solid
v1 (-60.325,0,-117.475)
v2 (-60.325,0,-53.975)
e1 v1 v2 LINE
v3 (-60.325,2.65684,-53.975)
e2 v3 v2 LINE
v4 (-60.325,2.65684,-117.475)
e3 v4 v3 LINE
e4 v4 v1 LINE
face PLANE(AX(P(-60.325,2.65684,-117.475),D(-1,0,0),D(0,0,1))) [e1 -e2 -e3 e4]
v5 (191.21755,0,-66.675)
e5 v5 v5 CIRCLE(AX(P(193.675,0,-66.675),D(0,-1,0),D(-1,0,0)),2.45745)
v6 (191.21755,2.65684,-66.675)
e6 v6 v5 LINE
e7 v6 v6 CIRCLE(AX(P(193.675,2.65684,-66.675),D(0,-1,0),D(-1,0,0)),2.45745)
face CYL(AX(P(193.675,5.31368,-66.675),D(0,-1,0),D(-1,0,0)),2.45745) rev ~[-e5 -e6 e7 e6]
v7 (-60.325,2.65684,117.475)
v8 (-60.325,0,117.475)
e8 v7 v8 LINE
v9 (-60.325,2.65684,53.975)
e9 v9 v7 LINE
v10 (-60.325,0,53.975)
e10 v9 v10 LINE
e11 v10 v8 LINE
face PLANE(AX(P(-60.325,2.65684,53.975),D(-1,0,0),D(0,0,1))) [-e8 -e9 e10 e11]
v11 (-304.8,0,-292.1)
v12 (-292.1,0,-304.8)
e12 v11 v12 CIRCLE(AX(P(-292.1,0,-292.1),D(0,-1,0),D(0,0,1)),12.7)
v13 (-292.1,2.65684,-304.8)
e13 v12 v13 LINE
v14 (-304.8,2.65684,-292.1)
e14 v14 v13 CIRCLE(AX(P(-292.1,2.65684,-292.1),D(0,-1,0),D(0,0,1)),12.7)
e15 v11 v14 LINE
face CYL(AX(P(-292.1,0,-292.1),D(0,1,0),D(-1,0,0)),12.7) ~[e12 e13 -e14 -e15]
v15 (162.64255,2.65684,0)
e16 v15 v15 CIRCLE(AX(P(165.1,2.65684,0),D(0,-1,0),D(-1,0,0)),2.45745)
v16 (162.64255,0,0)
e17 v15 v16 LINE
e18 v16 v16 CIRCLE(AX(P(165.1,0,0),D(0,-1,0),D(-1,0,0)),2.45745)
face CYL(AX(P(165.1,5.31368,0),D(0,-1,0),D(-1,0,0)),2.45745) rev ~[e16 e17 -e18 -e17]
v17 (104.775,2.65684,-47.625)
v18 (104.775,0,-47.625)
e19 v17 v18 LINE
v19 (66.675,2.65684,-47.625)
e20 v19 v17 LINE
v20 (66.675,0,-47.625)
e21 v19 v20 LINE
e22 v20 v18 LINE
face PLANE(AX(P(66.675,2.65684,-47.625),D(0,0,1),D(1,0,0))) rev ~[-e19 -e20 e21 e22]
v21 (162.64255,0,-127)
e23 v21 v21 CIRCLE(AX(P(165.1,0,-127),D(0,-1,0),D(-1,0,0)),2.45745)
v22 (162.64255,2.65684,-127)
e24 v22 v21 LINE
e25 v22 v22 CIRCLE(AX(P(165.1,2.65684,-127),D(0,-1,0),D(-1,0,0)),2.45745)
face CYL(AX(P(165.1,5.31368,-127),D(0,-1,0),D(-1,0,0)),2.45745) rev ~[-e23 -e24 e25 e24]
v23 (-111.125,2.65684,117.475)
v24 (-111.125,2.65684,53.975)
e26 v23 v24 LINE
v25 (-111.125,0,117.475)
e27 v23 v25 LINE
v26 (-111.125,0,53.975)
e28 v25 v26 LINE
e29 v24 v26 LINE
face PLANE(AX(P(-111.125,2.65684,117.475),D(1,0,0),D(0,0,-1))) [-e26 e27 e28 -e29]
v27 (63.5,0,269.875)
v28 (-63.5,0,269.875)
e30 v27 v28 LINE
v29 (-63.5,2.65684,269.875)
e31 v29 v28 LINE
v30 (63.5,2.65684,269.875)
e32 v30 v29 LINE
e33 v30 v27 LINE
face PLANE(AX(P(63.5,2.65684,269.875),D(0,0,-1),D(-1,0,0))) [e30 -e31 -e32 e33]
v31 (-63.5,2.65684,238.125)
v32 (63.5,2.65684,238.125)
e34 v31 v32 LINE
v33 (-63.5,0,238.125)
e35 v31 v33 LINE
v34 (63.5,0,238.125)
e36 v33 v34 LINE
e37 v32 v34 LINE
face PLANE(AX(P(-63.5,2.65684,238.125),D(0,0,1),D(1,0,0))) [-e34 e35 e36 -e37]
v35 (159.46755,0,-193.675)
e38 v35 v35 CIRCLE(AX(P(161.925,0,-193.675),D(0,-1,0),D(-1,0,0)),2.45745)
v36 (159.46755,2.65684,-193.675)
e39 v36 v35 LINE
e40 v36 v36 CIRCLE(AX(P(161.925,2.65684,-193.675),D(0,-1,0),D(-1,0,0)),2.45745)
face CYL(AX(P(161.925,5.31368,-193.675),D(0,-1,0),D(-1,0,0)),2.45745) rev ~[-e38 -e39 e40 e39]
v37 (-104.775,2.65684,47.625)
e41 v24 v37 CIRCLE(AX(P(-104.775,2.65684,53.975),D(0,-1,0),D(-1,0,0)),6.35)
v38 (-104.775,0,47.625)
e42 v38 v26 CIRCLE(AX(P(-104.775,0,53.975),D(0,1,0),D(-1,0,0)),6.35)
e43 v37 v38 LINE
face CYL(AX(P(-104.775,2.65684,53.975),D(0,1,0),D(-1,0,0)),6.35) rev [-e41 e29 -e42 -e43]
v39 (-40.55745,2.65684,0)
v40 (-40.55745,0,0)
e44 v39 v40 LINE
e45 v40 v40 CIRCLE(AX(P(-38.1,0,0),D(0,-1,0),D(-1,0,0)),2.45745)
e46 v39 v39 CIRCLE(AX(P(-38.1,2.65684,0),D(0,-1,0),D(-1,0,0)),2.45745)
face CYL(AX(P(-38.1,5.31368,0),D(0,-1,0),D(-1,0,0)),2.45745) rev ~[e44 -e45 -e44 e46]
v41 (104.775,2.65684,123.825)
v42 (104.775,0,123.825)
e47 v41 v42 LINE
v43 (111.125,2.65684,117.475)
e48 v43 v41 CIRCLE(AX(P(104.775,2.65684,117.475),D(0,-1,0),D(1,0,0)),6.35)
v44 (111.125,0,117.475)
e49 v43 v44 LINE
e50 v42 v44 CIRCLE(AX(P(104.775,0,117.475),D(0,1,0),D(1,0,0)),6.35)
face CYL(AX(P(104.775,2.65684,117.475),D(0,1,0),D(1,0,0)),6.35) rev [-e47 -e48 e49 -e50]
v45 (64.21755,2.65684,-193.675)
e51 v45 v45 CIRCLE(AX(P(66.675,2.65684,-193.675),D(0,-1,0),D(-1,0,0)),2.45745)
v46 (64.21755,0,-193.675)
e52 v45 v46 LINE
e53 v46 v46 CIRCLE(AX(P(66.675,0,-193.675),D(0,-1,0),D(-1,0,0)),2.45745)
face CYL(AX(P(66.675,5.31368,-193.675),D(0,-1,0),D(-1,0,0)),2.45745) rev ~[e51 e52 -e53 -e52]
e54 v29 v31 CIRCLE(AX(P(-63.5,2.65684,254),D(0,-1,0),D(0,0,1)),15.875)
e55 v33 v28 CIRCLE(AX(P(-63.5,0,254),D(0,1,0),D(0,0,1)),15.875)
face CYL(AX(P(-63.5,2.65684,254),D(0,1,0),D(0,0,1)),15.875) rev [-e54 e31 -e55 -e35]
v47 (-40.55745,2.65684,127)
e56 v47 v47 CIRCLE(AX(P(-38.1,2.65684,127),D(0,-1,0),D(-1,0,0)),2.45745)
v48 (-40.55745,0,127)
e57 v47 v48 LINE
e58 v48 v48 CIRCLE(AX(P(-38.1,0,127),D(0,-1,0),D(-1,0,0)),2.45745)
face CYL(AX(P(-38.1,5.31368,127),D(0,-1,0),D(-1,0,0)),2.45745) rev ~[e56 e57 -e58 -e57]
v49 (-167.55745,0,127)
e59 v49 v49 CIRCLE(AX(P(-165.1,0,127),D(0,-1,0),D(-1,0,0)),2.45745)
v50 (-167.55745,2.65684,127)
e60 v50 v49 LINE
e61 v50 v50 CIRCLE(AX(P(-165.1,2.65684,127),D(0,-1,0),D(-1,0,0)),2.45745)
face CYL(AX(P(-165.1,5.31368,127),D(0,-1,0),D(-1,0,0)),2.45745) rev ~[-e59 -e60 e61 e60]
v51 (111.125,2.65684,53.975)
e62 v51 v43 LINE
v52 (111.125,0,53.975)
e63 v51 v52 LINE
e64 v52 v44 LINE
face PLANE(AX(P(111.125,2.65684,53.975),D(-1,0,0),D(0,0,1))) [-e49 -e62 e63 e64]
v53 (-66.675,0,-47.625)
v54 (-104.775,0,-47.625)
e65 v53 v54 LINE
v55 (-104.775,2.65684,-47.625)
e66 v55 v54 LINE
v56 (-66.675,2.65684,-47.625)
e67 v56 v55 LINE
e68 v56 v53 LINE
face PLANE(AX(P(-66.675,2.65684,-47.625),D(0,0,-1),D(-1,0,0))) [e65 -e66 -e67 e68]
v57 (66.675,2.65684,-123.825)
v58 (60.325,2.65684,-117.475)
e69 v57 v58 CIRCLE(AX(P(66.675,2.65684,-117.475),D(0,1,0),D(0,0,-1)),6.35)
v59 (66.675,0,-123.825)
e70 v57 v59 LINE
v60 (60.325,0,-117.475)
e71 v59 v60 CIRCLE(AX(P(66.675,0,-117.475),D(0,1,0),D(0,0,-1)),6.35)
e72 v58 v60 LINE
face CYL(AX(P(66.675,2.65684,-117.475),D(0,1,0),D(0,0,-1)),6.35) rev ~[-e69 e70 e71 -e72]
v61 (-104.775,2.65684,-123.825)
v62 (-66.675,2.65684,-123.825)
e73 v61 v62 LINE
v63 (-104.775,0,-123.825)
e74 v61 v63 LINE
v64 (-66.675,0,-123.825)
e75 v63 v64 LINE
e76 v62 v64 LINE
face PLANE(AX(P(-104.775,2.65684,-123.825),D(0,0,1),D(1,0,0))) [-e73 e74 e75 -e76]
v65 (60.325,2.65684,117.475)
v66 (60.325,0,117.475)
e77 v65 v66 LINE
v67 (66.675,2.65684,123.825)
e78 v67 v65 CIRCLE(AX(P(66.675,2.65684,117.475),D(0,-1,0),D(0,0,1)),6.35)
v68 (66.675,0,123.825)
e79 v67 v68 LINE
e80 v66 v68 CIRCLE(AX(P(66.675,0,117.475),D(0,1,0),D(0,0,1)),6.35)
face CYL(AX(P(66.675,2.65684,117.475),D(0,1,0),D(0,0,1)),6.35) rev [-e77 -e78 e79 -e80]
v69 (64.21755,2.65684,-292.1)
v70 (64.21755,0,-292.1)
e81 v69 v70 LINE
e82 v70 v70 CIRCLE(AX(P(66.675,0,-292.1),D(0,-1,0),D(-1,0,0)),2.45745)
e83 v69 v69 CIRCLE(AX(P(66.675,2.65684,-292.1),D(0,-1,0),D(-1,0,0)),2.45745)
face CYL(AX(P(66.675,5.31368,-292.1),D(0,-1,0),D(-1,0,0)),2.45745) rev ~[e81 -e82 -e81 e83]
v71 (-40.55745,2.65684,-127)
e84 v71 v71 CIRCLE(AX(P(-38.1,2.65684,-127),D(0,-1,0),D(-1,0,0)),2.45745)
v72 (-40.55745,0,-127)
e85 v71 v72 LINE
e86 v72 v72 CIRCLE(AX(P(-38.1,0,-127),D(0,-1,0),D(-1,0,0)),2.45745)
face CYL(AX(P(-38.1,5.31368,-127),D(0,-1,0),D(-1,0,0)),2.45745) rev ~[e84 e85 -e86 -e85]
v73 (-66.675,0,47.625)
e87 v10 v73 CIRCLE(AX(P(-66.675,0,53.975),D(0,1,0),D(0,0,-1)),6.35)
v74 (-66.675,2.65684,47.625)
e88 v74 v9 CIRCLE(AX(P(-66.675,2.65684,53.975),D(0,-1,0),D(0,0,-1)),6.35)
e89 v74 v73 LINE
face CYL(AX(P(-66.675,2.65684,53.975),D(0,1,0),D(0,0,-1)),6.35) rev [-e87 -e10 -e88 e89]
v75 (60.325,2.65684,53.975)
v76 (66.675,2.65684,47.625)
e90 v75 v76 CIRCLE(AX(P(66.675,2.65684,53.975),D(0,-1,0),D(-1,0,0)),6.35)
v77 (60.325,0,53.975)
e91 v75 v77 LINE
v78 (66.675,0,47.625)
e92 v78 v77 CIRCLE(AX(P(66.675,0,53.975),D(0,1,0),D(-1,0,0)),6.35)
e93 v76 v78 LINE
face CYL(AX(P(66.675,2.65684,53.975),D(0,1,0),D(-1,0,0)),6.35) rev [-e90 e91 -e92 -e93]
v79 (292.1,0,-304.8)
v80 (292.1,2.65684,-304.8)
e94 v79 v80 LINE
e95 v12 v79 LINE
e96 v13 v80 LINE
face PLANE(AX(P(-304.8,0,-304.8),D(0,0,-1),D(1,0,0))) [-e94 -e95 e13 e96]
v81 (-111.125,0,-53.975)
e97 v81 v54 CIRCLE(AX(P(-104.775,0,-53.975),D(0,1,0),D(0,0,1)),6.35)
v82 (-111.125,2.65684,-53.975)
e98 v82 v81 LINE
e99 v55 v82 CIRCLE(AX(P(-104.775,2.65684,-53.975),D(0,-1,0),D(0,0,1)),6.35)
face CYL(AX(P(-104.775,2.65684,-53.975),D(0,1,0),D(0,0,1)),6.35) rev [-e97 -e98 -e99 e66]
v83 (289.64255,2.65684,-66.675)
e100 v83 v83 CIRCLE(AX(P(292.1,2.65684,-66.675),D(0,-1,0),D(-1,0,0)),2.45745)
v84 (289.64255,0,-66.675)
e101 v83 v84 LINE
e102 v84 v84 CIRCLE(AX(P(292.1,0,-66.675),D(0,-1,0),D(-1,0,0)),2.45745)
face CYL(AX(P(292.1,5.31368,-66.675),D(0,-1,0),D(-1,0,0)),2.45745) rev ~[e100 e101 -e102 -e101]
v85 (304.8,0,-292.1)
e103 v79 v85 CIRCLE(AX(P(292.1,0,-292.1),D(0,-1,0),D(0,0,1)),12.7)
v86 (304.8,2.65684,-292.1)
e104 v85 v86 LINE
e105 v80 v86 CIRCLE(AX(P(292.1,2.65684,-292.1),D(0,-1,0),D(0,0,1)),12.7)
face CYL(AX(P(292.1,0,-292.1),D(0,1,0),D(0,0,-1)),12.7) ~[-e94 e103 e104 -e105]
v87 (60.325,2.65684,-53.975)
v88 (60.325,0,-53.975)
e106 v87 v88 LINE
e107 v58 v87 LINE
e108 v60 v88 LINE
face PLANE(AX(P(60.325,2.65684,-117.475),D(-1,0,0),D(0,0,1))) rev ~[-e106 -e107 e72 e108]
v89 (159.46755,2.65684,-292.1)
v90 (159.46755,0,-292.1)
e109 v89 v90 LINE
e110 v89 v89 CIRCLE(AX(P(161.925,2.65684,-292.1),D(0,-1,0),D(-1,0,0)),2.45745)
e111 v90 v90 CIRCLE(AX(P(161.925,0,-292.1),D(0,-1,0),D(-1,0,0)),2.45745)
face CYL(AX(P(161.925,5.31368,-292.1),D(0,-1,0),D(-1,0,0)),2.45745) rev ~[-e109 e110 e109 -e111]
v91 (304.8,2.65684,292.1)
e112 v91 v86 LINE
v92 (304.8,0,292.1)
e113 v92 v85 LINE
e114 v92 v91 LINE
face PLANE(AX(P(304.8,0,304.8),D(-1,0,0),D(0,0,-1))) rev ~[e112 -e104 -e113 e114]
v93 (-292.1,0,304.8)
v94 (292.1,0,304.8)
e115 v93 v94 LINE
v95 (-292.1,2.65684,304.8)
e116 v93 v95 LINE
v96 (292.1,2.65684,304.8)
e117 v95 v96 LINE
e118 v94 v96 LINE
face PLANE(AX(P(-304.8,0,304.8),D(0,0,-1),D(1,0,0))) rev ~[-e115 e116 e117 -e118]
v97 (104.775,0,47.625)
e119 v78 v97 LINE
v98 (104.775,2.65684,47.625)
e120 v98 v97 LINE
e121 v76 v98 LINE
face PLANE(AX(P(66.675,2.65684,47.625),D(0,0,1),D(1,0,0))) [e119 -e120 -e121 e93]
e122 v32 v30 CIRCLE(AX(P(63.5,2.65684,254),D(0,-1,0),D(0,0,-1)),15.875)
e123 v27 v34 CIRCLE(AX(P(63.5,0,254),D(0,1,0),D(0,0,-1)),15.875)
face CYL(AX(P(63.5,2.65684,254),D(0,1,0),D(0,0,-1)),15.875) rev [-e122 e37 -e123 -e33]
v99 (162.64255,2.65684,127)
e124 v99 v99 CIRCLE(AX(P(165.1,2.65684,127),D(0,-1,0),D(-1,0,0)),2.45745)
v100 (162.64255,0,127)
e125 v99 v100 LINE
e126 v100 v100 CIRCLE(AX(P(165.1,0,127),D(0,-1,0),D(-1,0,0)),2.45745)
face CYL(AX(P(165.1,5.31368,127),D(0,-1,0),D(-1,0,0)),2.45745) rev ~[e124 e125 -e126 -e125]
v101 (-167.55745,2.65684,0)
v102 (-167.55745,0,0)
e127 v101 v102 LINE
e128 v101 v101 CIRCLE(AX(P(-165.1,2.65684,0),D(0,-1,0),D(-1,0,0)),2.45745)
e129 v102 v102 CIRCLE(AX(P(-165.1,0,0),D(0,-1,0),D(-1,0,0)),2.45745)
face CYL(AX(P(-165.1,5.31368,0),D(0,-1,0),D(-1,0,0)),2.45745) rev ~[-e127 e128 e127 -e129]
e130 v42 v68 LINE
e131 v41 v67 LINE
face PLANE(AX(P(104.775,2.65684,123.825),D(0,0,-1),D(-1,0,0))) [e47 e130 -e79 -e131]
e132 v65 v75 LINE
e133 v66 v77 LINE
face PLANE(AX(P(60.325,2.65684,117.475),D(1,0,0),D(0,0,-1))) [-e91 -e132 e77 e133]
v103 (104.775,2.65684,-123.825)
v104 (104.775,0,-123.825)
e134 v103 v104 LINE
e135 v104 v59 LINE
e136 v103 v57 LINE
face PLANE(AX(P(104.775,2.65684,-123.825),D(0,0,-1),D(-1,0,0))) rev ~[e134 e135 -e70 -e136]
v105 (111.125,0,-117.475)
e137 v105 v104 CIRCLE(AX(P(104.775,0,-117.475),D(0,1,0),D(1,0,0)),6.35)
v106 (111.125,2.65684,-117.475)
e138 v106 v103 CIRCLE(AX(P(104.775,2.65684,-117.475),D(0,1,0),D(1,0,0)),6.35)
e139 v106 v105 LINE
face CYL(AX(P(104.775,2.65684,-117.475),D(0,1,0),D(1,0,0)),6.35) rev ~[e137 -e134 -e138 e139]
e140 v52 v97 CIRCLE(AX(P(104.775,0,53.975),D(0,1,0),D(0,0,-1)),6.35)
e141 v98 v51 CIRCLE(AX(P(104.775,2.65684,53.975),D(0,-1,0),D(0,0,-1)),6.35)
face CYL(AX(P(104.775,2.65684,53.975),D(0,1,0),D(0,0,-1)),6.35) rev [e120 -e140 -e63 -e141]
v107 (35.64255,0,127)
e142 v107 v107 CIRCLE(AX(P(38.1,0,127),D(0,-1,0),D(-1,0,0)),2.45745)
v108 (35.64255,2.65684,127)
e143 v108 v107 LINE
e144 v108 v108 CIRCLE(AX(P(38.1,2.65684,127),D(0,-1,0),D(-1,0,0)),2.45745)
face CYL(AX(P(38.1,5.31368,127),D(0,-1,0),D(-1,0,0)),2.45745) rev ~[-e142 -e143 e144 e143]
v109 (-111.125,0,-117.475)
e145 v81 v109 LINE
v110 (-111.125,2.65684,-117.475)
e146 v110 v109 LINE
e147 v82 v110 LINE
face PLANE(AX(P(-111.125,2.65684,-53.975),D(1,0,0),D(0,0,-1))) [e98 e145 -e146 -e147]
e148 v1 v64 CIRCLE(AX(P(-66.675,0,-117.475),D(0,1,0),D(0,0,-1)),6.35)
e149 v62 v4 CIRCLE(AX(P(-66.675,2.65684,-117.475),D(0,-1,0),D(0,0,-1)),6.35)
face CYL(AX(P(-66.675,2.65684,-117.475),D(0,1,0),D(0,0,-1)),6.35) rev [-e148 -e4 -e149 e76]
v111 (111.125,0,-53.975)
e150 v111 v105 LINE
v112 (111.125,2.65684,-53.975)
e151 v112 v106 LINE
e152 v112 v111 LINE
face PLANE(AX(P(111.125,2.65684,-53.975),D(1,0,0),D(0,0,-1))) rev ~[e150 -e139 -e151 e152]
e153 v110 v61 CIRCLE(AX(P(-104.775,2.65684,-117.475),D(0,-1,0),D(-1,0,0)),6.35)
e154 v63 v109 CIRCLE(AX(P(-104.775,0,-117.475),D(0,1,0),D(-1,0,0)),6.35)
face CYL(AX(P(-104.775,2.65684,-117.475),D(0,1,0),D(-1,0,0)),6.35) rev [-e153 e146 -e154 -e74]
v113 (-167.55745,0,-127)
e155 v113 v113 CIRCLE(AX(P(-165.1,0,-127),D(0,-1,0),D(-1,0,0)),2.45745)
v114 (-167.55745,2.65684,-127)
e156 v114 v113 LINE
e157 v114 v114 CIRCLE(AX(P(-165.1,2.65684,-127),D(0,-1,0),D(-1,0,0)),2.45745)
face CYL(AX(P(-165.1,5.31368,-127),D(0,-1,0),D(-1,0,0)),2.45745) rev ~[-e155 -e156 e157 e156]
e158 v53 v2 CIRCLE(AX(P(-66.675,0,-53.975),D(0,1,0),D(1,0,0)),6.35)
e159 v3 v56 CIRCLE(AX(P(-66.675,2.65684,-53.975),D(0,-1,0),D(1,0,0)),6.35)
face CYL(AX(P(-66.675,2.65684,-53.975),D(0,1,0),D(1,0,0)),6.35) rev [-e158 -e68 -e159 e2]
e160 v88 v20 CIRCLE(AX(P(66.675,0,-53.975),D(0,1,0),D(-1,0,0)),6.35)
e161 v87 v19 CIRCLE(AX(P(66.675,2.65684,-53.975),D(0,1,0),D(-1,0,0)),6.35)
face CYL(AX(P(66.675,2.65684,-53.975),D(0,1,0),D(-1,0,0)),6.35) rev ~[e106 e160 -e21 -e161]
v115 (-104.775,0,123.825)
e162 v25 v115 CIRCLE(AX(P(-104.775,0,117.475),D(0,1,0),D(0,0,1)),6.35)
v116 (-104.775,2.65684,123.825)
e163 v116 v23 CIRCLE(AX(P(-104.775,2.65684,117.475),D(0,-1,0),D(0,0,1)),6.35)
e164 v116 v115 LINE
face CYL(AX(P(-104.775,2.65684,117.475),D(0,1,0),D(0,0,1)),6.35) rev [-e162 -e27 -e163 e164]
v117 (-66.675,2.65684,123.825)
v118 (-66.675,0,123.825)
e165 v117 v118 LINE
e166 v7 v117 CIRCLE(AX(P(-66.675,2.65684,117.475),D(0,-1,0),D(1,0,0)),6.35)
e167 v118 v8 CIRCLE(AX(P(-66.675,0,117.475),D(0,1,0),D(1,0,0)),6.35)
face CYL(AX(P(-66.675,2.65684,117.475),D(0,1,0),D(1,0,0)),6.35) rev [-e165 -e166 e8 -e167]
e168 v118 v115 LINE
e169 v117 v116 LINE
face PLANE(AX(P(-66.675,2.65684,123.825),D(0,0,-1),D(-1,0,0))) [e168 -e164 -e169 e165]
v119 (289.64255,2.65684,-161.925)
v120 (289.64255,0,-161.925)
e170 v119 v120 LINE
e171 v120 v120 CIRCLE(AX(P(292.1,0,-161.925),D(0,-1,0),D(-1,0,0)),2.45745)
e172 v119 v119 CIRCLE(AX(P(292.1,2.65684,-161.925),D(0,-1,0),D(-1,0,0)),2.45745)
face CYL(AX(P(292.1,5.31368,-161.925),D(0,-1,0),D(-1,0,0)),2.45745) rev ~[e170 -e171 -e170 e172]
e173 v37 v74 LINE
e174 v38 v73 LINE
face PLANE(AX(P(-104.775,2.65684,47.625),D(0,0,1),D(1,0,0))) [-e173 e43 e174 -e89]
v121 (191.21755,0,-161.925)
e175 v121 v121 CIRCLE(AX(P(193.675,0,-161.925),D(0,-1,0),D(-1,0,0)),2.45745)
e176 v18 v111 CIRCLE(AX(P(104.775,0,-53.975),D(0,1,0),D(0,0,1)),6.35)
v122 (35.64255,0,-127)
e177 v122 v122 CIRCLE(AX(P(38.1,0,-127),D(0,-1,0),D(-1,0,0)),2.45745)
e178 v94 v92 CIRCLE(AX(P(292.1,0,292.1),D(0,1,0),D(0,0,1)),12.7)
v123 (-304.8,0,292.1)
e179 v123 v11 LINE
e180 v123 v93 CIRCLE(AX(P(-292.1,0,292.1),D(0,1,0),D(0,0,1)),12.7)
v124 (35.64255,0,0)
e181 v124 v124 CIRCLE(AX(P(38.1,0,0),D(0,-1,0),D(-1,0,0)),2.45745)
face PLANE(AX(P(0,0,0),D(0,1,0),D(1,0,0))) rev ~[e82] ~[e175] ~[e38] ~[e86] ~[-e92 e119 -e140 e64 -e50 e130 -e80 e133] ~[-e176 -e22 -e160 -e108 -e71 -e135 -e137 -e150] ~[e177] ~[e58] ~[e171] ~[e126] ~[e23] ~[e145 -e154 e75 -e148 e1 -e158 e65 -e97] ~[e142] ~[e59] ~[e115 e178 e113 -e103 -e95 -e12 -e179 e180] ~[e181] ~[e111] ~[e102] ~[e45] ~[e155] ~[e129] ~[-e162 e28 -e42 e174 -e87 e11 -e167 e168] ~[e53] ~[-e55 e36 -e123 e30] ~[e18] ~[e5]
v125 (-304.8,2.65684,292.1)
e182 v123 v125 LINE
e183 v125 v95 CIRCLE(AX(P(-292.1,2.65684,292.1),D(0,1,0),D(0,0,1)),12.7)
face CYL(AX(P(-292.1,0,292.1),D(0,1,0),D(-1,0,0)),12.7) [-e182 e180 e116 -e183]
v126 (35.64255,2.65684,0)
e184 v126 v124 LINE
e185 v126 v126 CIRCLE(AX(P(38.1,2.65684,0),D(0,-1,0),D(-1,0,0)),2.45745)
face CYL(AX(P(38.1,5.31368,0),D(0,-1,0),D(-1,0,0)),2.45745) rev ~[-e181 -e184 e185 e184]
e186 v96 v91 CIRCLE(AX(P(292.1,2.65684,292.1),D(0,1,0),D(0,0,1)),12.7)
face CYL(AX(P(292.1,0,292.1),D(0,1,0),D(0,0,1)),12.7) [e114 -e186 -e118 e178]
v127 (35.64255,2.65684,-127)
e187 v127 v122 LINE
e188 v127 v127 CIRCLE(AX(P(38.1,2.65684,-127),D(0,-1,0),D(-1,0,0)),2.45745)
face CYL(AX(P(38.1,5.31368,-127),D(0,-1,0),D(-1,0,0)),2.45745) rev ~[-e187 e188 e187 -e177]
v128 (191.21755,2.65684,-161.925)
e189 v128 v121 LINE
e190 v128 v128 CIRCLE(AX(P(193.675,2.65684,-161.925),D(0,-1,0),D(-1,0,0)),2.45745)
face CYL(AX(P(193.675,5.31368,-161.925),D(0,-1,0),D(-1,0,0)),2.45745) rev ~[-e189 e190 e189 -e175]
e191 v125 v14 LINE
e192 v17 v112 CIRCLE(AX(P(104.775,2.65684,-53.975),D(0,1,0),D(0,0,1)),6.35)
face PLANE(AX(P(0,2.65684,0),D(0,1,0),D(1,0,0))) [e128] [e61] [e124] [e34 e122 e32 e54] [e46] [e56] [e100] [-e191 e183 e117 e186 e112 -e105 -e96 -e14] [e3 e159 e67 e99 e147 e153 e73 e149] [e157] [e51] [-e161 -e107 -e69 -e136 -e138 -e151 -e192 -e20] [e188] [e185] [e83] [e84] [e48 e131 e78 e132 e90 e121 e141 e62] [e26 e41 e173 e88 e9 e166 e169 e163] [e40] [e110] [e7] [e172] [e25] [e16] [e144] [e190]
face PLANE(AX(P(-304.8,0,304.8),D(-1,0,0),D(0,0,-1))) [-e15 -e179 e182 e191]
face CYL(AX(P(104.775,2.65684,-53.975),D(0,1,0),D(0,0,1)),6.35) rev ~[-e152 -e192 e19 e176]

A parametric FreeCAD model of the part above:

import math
import FreeCAD as App
import Part
import Sketcher
Q = App.Units.Quantity


def edges_at(feature, points):
    """Names of the edges that pass closest to the given points."""
    edges = feature.Shape.Edges
    near = lambda p: min(range(len(edges)), key=lambda i: edges[i].distToShape(Part.Vertex(*p))[0])
    return sorted({f"Edge{near(p) + 1}" for p in points})

doc = App.newDocument("Part")
params = doc.addObject("Spreadsheet::Sheet", "Params")
for row, (alias, value) in enumerate([
    ("sketch1_width", "24 in"),
    ("pad1_length", "0.1046 in"),
    ("sketch2_radius", "0.25 in"),
    ("sketch2_width", "1.5 in"),
    ("sketch2_height", "2.5 in"),
    ("sketch3_diameter", "0.188 in"),
    ("linearpattern_pitch", "8 in"),
    ("sketch4_width", "5 in"),
    ("sketch4_radius", "0.625 in"),
    ("fillet_radius", "0.5 in"),
    ("sketch5_diameter", "0.188 in"),
    ("hole_diameter", "0.1935 in"),
    ("hole_depth", "0.1046 in"),
], start=1):
    params.set(f"A{row}", alias)
    params.set(f"B{row}", "=" + value)
    params.setAlias(f"B{row}", alias)

body = doc.addObject("PartDesign::Body", "Body")

# Sketch on XZ plane
sketch1 = body.newObject("Sketcher::SketchObject", "Sketch")
sketch1.AttachmentSupport = (doc.getObject("XZ_Plane"), [""])
sketch1.MapMode = "FlatFace"
sketch1.addGeometry([
    Part.LineSegment(App.Vector(-305, -305, 0), App.Vector(-305, 305, 0)),
    Part.LineSegment(App.Vector(-305, 305, 0), App.Vector(305, 305, 0)),
    Part.LineSegment(App.Vector(305, 305, 0), App.Vector(305, -305, 0)),
    Part.LineSegment(App.Vector(305, -305, 0), App.Vector(-305, -305, 0)),
], False)
sketch1.addConstraint([
    Sketcher.Constraint("Coincident", 0, 2, 1, 1),
    Sketcher.Constraint("Coincident", 1, 2, 2, 1),
    Sketcher.Constraint("Coincident", 2, 2, 3, 1),
    Sketcher.Constraint("Coincident", 3, 2, 0, 1),
    Sketcher.Constraint("Vertical", 0),
    Sketcher.Constraint("Horizontal", 1),
    Sketcher.Constraint("Vertical", 2),
    Sketcher.Constraint("Horizontal", 3),
    Sketcher.Constraint("Symmetric", 0, 2, 2, 2, -1, 1),
    Sketcher.Constraint("Equal", 3, 0),
    Sketcher.Constraint("DistanceX", 1, 1, 1, 2, Q("24 in")),
])
sketch1.setExpression("Constraints[10]", "Params.sketch1_width")
pad1 = body.newObject("PartDesign::Pad", "Pad")
pad1.Profile = sketch1
pad1.setExpression("Length", "Params.pad1_length")
pad1.Reversed = True

# Sketch on XZ plane
sketch2 = body.newObject("Sketcher::SketchObject", "Sketch001")
sketch2.AttachmentSupport = (doc.getObject("XZ_Plane"), [""])
sketch2.MapMode = "FlatFace"
sketch2.AttachmentOffset = App.Placement(App.Vector(0, 0, -0.1046 * 25.4), App.Rotation())
sketch2.addGeometry([
    Part.LineSegment(App.Vector(-67, -124, 0), App.Vector(-105, -124, 0)),  # 0
    Part.ArcOfCircle(Part.Circle(App.Vector(-105, -117, 0), App.Vector(0, 0, 1), 6), math.radians(180), math.radians(270)),  # 1
    Part.LineSegment(App.Vector(-111, -117, 0), App.Vector(-111, -54, 0)),  # 2
    Part.ArcOfCircle(Part.Circle(App.Vector(-105, -54, 0), App.Vector(0, 0, 1), 6), math.radians(90), math.radians(180)),  # 3
    Part.LineSegment(App.Vector(-105, -48, 0), App.Vector(-67, -48, 0)),  # 4
    Part.ArcOfCircle(Part.Circle(App.Vector(-67, -54, 0), App.Vector(0, 0, 1), 6), math.radians(0), math.radians(90)),  # 5
    Part.LineSegment(App.Vector(-60, -54, 0), App.Vector(-60, -117, 0)),  # 6
    Part.ArcOfCircle(Part.Circle(App.Vector(-67, -117, 0), App.Vector(0, 0, 1), 6), math.radians(-90), math.radians(0)),  # 7
    Part.LineSegment(App.Vector(-67, 48, 0), App.Vector(-105, 48, 0)),  # 8
    Part.ArcOfCircle(Part.Circle(App.Vector(-105, 54, 0), App.Vector(0, 0, 1), 6), math.radians(180), math.radians(270)),  # 9
    Part.LineSegment(App.Vector(-111, 54, 0), App.Vector(-111, 117, 0)),  # 10
    Part.ArcOfCircle(Part.Circle(App.Vector(-105, 117, 0), App.Vector(0, 0, 1), 6), math.radians(90), math.radians(180)),  # 11
    Part.LineSegment(App.Vector(-105, 124, 0), App.Vector(-67, 124, 0)),  # 12
    Part.ArcOfCircle(Part.Circle(App.Vector(-67, 117, 0), App.Vector(0, 0, 1), 6), math.radians(0), math.radians(90)),  # 13
    Part.LineSegment(App.Vector(-60, 117, 0), App.Vector(-60, 54, 0)),  # 14
    Part.ArcOfCircle(Part.Circle(App.Vector(-67, 54, 0), App.Vector(0, 0, 1), 6), math.radians(-90), math.radians(0)),  # 15
    Part.LineSegment(App.Vector(105, 48, 0), App.Vector(67, 48, 0)),  # 16
    Part.ArcOfCircle(Part.Circle(App.Vector(67, 54, 0), App.Vector(0, 0, 1), 6), math.radians(180), math.radians(270)),  # 17
    Part.LineSegment(App.Vector(60, 54, 0), App.Vector(60, 117, 0)),  # 18
    Part.ArcOfCircle(Part.Circle(App.Vector(67, 117, 0), App.Vector(0, 0, 1), 6), math.radians(90), math.radians(180)),  # 19
    Part.LineSegment(App.Vector(67, 124, 0), App.Vector(105, 124, 0)),  # 20
    Part.ArcOfCircle(Part.Circle(App.Vector(105, 117, 0), App.Vector(0, 0, 1), 6), math.radians(0), math.radians(90)),  # 21
    Part.LineSegment(App.Vector(111, 117, 0), App.Vector(111, 54, 0)),  # 22
    Part.ArcOfCircle(Part.Circle(App.Vector(105, 54, 0), App.Vector(0, 0, 1), 6), math.radians(-90), math.radians(0)),  # 23
    Part.LineSegment(App.Vector(105, -124, 0), App.Vector(67, -124, 0)),  # 24
    Part.ArcOfCircle(Part.Circle(App.Vector(67, -117, 0), App.Vector(0, 0, 1), 6), math.radians(180), math.radians(270)),  # 25
    Part.LineSegment(App.Vector(60, -117, 0), App.Vector(60, -54, 0)),  # 26
    Part.ArcOfCircle(Part.Circle(App.Vector(67, -54, 0), App.Vector(0, 0, 1), 6), math.radians(90), math.radians(180)),  # 27
    Part.LineSegment(App.Vector(67, -48, 0), App.Vector(105, -48, 0)),  # 28
    Part.ArcOfCircle(Part.Circle(App.Vector(105, -54, 0), App.Vector(0, 0, 1), 6), math.radians(0), math.radians(90)),  # 29
    Part.LineSegment(App.Vector(111, -54, 0), App.Vector(111, -117, 0)),  # 30
    Part.ArcOfCircle(Part.Circle(App.Vector(105, -117, 0), App.Vector(0, 0, 1), 6), math.radians(-90), math.radians(0)),  # 31
], False)
sketch2.addConstraint([
    Sketcher.Constraint("Tangent", 0, 2, 1, 2),
    Sketcher.Constraint("Tangent", 1, 1, 2, 1),
    Sketcher.Constraint("Tangent", 2, 2, 3, 2),
    Sketcher.Constraint("Tangent", 3, 1, 4, 1),
    Sketcher.Constraint("Tangent", 4, 2, 5, 2),
    Sketcher.Constraint("Tangent", 5, 1, 6, 1),
    Sketcher.Constraint("Tangent", 6, 2, 7, 2),
    Sketcher.Constraint("Tangent", 7, 1, 0, 1),
    Sketcher.Constraint("Tangent", 8, 2, 9, 2),
    Sketcher.Constraint("Tangent", 9, 1, 10, 1),
    Sketcher.Constraint("Tangent", 10, 2, 11, 2),
    Sketcher.Constraint("Tangent", 11, 1, 12, 1),
    Sketcher.Constraint("Tangent", 12, 2, 13, 2),
    Sketcher.Constraint("Tangent", 13, 1, 14, 1),
    Sketcher.Constraint("Tangent", 14, 2, 15, 2),
    Sketcher.Constraint("Tangent", 15, 1, 8, 1),
    Sketcher.Constraint("Tangent", 16, 2, 17, 2),
    Sketcher.Constraint("Tangent", 17, 1, 18, 1),
    Sketcher.Constraint("Tangent", 18, 2, 19, 2),
    Sketcher.Constraint("Tangent", 19, 1, 20, 1),
    Sketcher.Constraint("Tangent", 20, 2, 21, 2),
    Sketcher.Constraint("Tangent", 21, 1, 22, 1),
    Sketcher.Constraint("Tangent", 22, 2, 23, 2),
    Sketcher.Constraint("Tangent", 23, 1, 16, 1),
    Sketcher.Constraint("Tangent", 24, 2, 25, 2),
    Sketcher.Constraint("Tangent", 25, 1, 26, 1),
    Sketcher.Constraint("Tangent", 26, 2, 27, 2),
    Sketcher.Constraint("Tangent", 27, 1, 28, 1),
    Sketcher.Constraint("Tangent", 28, 2, 29, 2),
    Sketcher.Constraint("Tangent", 29, 1, 30, 1),
    Sketcher.Constraint("Tangent", 30, 2, 31, 2),
    Sketcher.Constraint("Tangent", 31, 1, 24, 1),
    Sketcher.Constraint("Horizontal", 0),
    Sketcher.Constraint("Vertical", 2),
    Sketcher.Constraint("Horizontal", 4),
    Sketcher.Constraint("Vertical", 6),
    Sketcher.Constraint("Horizontal", 8),
    Sketcher.Constraint("Vertical", 10),
    Sketcher.Constraint("Horizontal", 12),
    Sketcher.Constraint("Vertical", 14),
    Sketcher.Constraint("Horizontal", 16),
    Sketcher.Constraint("Vertical", 18),
    Sketcher.Constraint("Horizontal", 20),
    Sketcher.Constraint("Vertical", 22),
    Sketcher.Constraint("Horizontal", 24),
    Sketcher.Constraint("Vertical", 26),
    Sketcher.Constraint("Horizontal", 28),
    Sketcher.Constraint("Vertical", 30),
    Sketcher.Constraint("Equal", 1, 3),
    Sketcher.Constraint("Equal", 3, 5),
    Sketcher.Constraint("Equal", 5, 7),
    Sketcher.Constraint("Equal", 7, 9),
    Sketcher.Constraint("Equal", 9, 11),
    Sketcher.Constraint("Equal", 11, 13),
    Sketcher.Constraint("Equal", 13, 15),
    Sketcher.Constraint("Equal", 15, 17),
    Sketcher.Constraint("Equal", 17, 19),
    Sketcher.Constraint("Equal", 19, 21),
    Sketcher.Constraint("Equal", 21, 23),
    Sketcher.Constraint("Equal", 23, 25),
    Sketcher.Constraint("Equal", 25, 27),
    Sketcher.Constraint("Equal", 27, 29),
    Sketcher.Constraint("Equal", 29, 31),
    Sketcher.Constraint("Symmetric", 5, 3, 17, 3, -1, 1),
    Sketcher.Constraint("Symmetric", 1, 3, 21, 3, -1, 1),
    Sketcher.Constraint("Symmetric", 13, 3, 25, 3, -1, 1),
    Sketcher.Constraint("Symmetric", 9, 3, 29, 3, -1, 1),
    Sketcher.Constraint("Symmetric", 15, 3, 17, 3, -2),
    Sketcher.Constraint("Symmetric", 11, 3, 21, 3, -2),
    Sketcher.Constraint("Radius", 1, Q("0.25 in")),
    Sketcher.Constraint("DistanceX", 0, 2, 0, 1, Q("1.5 in")),
    Sketcher.Constraint("DistanceY", 2, 1, 2, 2, Q("2.5 in")),
    Sketcher.Constraint("DistanceY", 27, 3, 16, 2, Q("4 in")),
    Sketcher.Constraint("DistanceX", 6, 2, 24, 2, Q("5 in")),
])
sketch2.setExpression("Constraints[69]", "Params.sketch2_radius")
sketch2.setExpression("Constraints[70]", "Params.sketch2_width")
sketch2.setExpression("Constraints[71]", "Params.sketch2_height")
pocket1 = body.newObject("PartDesign::Pocket", "Pocket")
pocket1.Profile = sketch2
pocket1.Type = "ThroughAll"
pocket1.Reversed = True

# Sketch on XZ plane
sketch3 = body.newObject("Sketcher::SketchObject", "Sketch002")
sketch3.AttachmentSupport = (doc.getObject("XZ_Plane"), [""])
sketch3.MapMode = "FlatFace"
sketch3.AttachmentOffset = App.Placement(App.Vector(0, 0, -0.1046 * 25.4), App.Rotation())
sketch3.addGeometry([
    Part.Circle(App.Vector(-165.1, -127, 0), App.Vector(0, 0, 1), 2.4),  # 0
    Part.Circle(App.Vector(-165.1, 0, 0), App.Vector(0, 0, 1), 2.4),  # 1
    Part.Circle(App.Vector(-165.1, 127, 0), App.Vector(0, 0, 1), 2.4),  # 2
    Part.Circle(App.Vector(-38.1, -127, 0), App.Vector(0, 0, 1), 2.4),  # 3
    Part.Circle(App.Vector(-38.1, 0, 0), App.Vector(0, 0, 1), 2.4),  # 4
    Part.Circle(App.Vector(-38.1, 127, 0), App.Vector(0, 0, 1), 2.4),  # 5
], False)
sketch3.addConstraint([
    Sketcher.Constraint("Equal", 0, 1),
    Sketcher.Constraint("Equal", 1, 2),
    Sketcher.Constraint("Equal", 2, 3),
    Sketcher.Constraint("Equal", 3, 4),
    Sketcher.Constraint("Equal", 4, 5),
    Sketcher.Constraint("Symmetric", 0, 3, 2, 3, -1),
    Sketcher.Constraint("Symmetric", 3, 3, 5, 3, -1),
    Sketcher.Constraint("PointOnObject", 1, 3, -1),
    Sketcher.Constraint("PointOnObject", 4, 3, -1),
    Sketcher.Constraint("Horizontal", 0, 3, 3, 3),
    Sketcher.Constraint("Vertical", 0, 3, 1, 3),
    Sketcher.Constraint("Vertical", 3, 3, 4, 3),
    Sketcher.Constraint("Diameter", 0, Q("0.188 in")),
    Sketcher.Constraint("DistanceY", 0, 3, -1, 1, Q("5 in")),
    Sketcher.Constraint("DistanceX", 0, 3, 3, 3, Q("5 in")),
    Sketcher.Constraint("DistanceX", 0, 3, -1, 1, Q("6.5 in")),
])
sketch3.setExpression("Constraints[12]", "Params.sketch3_diameter")
pocket2 = body.newObject("PartDesign::Pocket", "Pocket001")
pocket2.Profile = sketch3
pocket2.Type = "ThroughAll"
pocket2.Reversed = True
doc.recompute()

linearpattern = body.newObject("PartDesign::LinearPattern", "LinearPattern")
linearpattern.Originals = [pocket2]
linearpattern.Direction = (doc.getObject("X_Axis"), [""])
linearpattern.Mode = "offset"
linearpattern.setExpression("Offset", "Params.linearpattern_pitch")
linearpattern.Occurrences = 2
body.Tip = linearpattern

# Sketch on XZ plane
sketch4 = body.newObject("Sketcher::SketchObject", "Sketch003")
sketch4.AttachmentSupport = (doc.getObject("XZ_Plane"), [""])
sketch4.MapMode = "FlatFace"
sketch4.AttachmentOffset = App.Placement(App.Vector(0, 0, -0.1046 * 25.4), App.Rotation())
sketch4.addGeometry([
    Part.LineSegment(App.Vector(64, 238, 0), App.Vector(-64, 238, 0)),
    Part.ArcOfCircle(Part.Circle(App.Vector(-64, 254, 0), App.Vector(0, 0, 1), 16), math.radians(90), math.radians(270)),
    Part.LineSegment(App.Vector(-64, 270, 0), App.Vector(64, 270, 0)),
    Part.ArcOfCircle(Part.Circle(App.Vector(64, 254, 0), App.Vector(0, 0, 1), 16), math.radians(-90), math.radians(90)),
], False)
sketch4.addConstraint([
    Sketcher.Constraint("Tangent", 0, 2, 1, 2),
    Sketcher.Constraint("Tangent", 1, 1, 2, 1),
    Sketcher.Constraint("Tangent", 2, 2, 3, 2),
    Sketcher.Constraint("Tangent", 3, 1, 0, 1),
    Sketcher.Constraint("Horizontal", 0),
    Sketcher.Constraint("Horizontal", 2),
    Sketcher.Constraint("DistanceX", 0, 2, 0, 1, Q("5 in")),
    Sketcher.Constraint("DistanceY", -1, 1, 1, 3, Q("10 in")),
    Sketcher.Constraint("Radius", 1, Q("0.625 in")),
    Sketcher.Constraint("DistanceX", 1, 3, -1, 1, Q("2.5 in")),
])
sketch4.setExpression("Constraints[6]", "Params.sketch4_width")
sketch4.setExpression("Constraints[8]", "Params.sketch4_radius")
pocket3 = body.newObject("PartDesign::Pocket", "Pocket002")
pocket3.Profile = sketch4
pocket3.Type = "ThroughAll"
pocket3.Reversed = True
doc.recompute()

fillet = body.newObject("PartDesign::Fillet", "Fillet")
fillet.Base = (pocket3, edges_at(pocket3, [
    (-304.8, 1.328, 304.8),
    (304.8, 1.328, 304.8),
    (-304.8, 1.328, -304.8),
    (304.8, 1.328, -304.8),
]))
fillet.setExpression("Radius", "Params.fillet_radius")

# Sketch on XZ plane
sketch5 = body.newObject("Sketcher::SketchObject", "Sketch004")
sketch5.AttachmentSupport = (doc.getObject("XZ_Plane"), [""])
sketch5.MapMode = "FlatFace"
sketch5.AttachmentOffset = App.Placement(App.Vector(0, 0, -0.1046 * 25.4), App.Rotation())
sketch5.addGeometry([
    Part.Circle(App.Vector(161.9, -292.1, 0), App.Vector(0, 0, 1), 2.4),  # 0
    Part.Circle(App.Vector(66.7, -292.1, 0), App.Vector(0, 0, 1), 2.4),  # 1
    Part.Circle(App.Vector(161.9, -193.7, 0), App.Vector(0, 0, 1), 2.4),  # 2
    Part.Circle(App.Vector(66.7, -193.7, 0), App.Vector(0, 0, 1), 2.4),  # 3
    Part.Circle(App.Vector(193.7, -161.9, 0), App.Vector(0, 0, 1), 2.4),  # 4
    Part.Circle(App.Vector(193.7, -66.7, 0), App.Vector(0, 0, 1), 2.4),  # 5
    Part.Circle(App.Vector(292.1, -66.7, 0), App.Vector(0, 0, 1), 2.4),  # 6
    Part.Circle(App.Vector(292.1, -161.9, 0), App.Vector(0, 0, 1), 2.4),  # 7
], False)
sketch5.addConstraint([
    Sketcher.Constraint("Equal", 0, 1),
    Sketcher.Constraint("Equal", 1, 2),
    Sketcher.Constraint("Equal", 2, 3),
    Sketcher.Constraint("Equal", 3, 4),
    Sketcher.Constraint("Equal", 4, 5),
    Sketcher.Constraint("Equal", 5, 6),
    Sketcher.Constraint("Equal", 6, 7),
    Sketcher.Constraint("Horizontal", 0, 3, 1, 3),
    Sketcher.Constraint("Horizontal", 2, 3, 3, 3),
    Sketcher.Constraint("Horizontal", 5, 3, 6, 3),
    Sketcher.Constraint("Horizontal", 4, 3, 7, 3),
    Sketcher.Constraint("Vertical", 0, 3, 2, 3),
    Sketcher.Constraint("Vertical", 1, 3, 3, 3),
    Sketcher.Constraint("Vertical", 4, 3, 5, 3),
    Sketcher.Constraint("Vertical", 6, 3, 7, 3),
    Sketcher.Constraint("Diameter", 0, Q("0.188 in")),
    Sketcher.Constraint("DistanceX", 3, 3, 4, 3, Q("5 in")),
    Sketcher.Constraint("DistanceY", 2, 3, 5, 3, Q("5 in")),
    Sketcher.Constraint("DistanceY", 0, 3, -1, 1, Q("11.5 in")),
    Sketcher.Constraint("DistanceX", -1, 1, 6, 3, Q("11.5 in")),
    Sketcher.Constraint("DistanceX", 1, 3, 0, 3, Q("3.75 in")),
    Sketcher.Constraint("DistanceY", 2, 3, 4, 3, Q("1.25 in")),
    Sketcher.Constraint("DistanceX", -1, 1, 0, 3, Q("6.375 in")),
    Sketcher.Constraint("DistanceY", 2, 3, -1, 1, Q("7.625 in")),
])
sketch5.setExpression("Constraints[15]", "Params.sketch5_diameter")
pocket4 = body.newObject("PartDesign::Pocket", "Pocket003")
pocket4.Profile = sketch5
pocket4.Type = "ThroughAll"
pocket4.Reversed = True

# Sketch on XZ plane
sketch6 = body.newObject("Sketcher::SketchObject", "Sketch005")
sketch6.AttachmentSupport = (doc.getObject("XZ_Plane"), [""])
sketch6.MapMode = "FlatFace"
sketch6.AttachmentOffset = App.Placement(App.Vector(0, 0, -0.1046 * 25.4), App.Rotation())
sketch6.addGeometry([
    Part.Circle(App.Vector(161.9, -292.1, 0), App.Vector(0, 0, 1), 2.5),  # 0
    Part.Circle(App.Vector(66.7, -292.1, 0), App.Vector(0, 0, 1), 2.5),  # 1
    Part.Circle(App.Vector(292.1, -161.9, 0), App.Vector(0, 0, 1), 2.5),  # 2
    Part.Circle(App.Vector(193.7, -161.9, 0), App.Vector(0, 0, 1), 2.5),  # 3
    Part.Circle(App.Vector(161.9, -193.7, 0), App.Vector(0, 0, 1), 2.5),  # 4
    Part.Circle(App.Vector(66.7, -193.7, 0), App.Vector(0, 0, 1), 2.5),  # 5
    Part.Circle(App.Vector(165.1, -127, 0), App.Vector(0, 0, 1), 2.5),  # 6
    Part.Circle(App.Vector(38.1, -127, 0), App.Vector(0, 0, 1), 2.5),  # 7
    Part.Circle(App.Vector(-38.1, -127, 0), App.Vector(0, 0, 1), 2.5),  # 8
    Part.Circle(App.Vector(292.1, -66.7, 0), App.Vector(0, 0, 1), 2.5),  # 9
    Part.Circle(App.Vector(193.7, -66.7, 0), App.Vector(0, 0, 1), 2.5),  # 10
    Part.Circle(App.Vector(165.1, 0, 0), App.Vector(0, 0, 1), 2.5),  # 11
    Part.Circle(App.Vector(165.1, 127, 0), App.Vector(0, 0, 1), 2.5),  # 12
    Part.Circle(App.Vector(-38.1, 0, 0), App.Vector(0, 0, 1), 2.5),  # 13
    Part.Circle(App.Vector(38.1, 0, 0), App.Vector(0, 0, 1), 2.5),  # 14
    Part.Circle(App.Vector(38.1, 127, 0), App.Vector(0, 0, 1), 2.5),  # 15
    Part.Circle(App.Vector(-38.1, 127, 0), App.Vector(0, 0, 1), 2.5),  # 16
    Part.Circle(App.Vector(-165.1, 127, 0), App.Vector(0, 0, 1), 2.5),  # 17
    Part.Circle(App.Vector(-165.1, 0, 0), App.Vector(0, 0, 1), 2.5),  # 18
    Part.Circle(App.Vector(-165.1, -127, 0), App.Vector(0, 0, 1), 2.5),  # 19
], False)
sketch6.addConstraint([
    Sketcher.Constraint("Equal", 0, 1),
    Sketcher.Constraint("Equal", 1, 2),
    Sketcher.Constraint("Equal", 2, 3),
    Sketcher.Constraint("Equal", 3, 4),
    Sketcher.Constraint("Equal", 4, 5),
    Sketcher.Constraint("Equal", 5, 6),
    Sketcher.Constraint("Equal", 6, 7),
    Sketcher.Constraint("Equal", 7, 8),
    Sketcher.Constraint("Equal", 8, 9),
    Sketcher.Constraint("Equal", 9, 10),
    Sketcher.Constraint("Equal", 10, 11),
    Sketcher.Constraint("Equal", 11, 12),
    Sketcher.Constraint("Equal", 12, 13),
    Sketcher.Constraint("Equal", 13, 14),
    Sketcher.Constraint("Equal", 14, 15),
    Sketcher.Constraint("Equal", 15, 16),
    Sketcher.Constraint("Equal", 16, 17),
    Sketcher.Constraint("Equal", 17, 18),
    Sketcher.Constraint("Equal", 18, 19),
    Sketcher.Constraint("Symmetric", 13, 3, 14, 3, -1, 1),
    Sketcher.Constraint("Symmetric", 8, 3, 15, 3, -1, 1),
    Sketcher.Constraint("Symmetric", 7, 3, 16, 3, -1, 1),
    Sketcher.Constraint("Symmetric", 6, 3, 17, 3, -1, 1),
    Sketcher.Constraint("Symmetric", 11, 3, 18, 3, -1, 1),
    Sketcher.Constraint("Symmetric", 12, 3, 19, 3, -1, 1),
    Sketcher.Constraint("Symmetric", 7, 3, 8, 3, -2),
    Sketcher.Constraint("Symmetric", 12, 3, 17, 3, -2),
    Sketcher.Constraint("PointOnObject", 11, 3, -1),
    Sketcher.Constraint("PointOnObject", 13, 3, -1),
    Sketcher.Constraint("Horizontal", 0, 3, 1, 3),
    Sketcher.Constraint("Horizontal", 2, 3, 3, 3),
    Sketcher.Constraint("Horizontal", 4, 3, 5, 3),
    Sketcher.Constraint("Horizontal", 6, 3, 7, 3),
    Sketcher.Constraint("Horizontal", 9, 3, 10, 3),
    Sketcher.Constraint("Vertical", 0, 3, 4, 3),
    Sketcher.Constraint("Vertical", 1, 3, 5, 3),
    Sketcher.Constraint("Vertical", 2, 3, 9, 3),
    Sketcher.Constraint("Vertical", 3, 3, 10, 3),
    Sketcher.Constraint("Vertical", 6, 3, 11, 3),
    Sketcher.Constraint("Vertical", 8, 3, 13, 3),
    Sketcher.Constraint("DistanceY", 6, 3, -1, 1, Q("5 in")),
    Sketcher.Constraint("DistanceX", 1, 3, 3, 3, Q("5 in")),
    Sketcher.Constraint("DistanceX", 6, 3, 2, 3, Q("5 in")),
    Sketcher.Constraint("DistanceX", 7, 3, 6, 3, Q("5 in")),
    Sketcher.Constraint("DistanceX", 8, 3, 7, 3, Q("3 in")),
    Sketcher.Constraint("DistanceY", 4, 3, 9, 3, Q("5 in")),
    Sketcher.Constraint("Diameter", 0, Q("0.1935 in")),
    Sketcher.Constraint("DistanceY", 0, 3, -1, 1, Q("11.5 in")),
    Sketcher.Constraint("DistanceX", 1, 3, 0, 3, Q("3.75 in")),
    Sketcher.Constraint("DistanceY", 4, 3, 3, 3, Q("1.25 in")),
    Sketcher.Constraint("DistanceX", -1, 1, 0, 3, Q("6.375 in")),
    Sketcher.Constraint("DistanceY", 2, 3, -1, 1, Q("6.375 in")),
])
doc.recompute()
hole = body.newObject("PartDesign::Hole", "Hole")
hole.Profile = sketch6
hole.ThreadType = "None"
hole.setExpression("Diameter", "Params.hole_diameter")
hole.DepthType = "Dimension"
hole.setExpression("Depth", "Params.hole_depth")
hole.DrillPoint = "Flat"
hole.Reversed = True

doc.recompute()
